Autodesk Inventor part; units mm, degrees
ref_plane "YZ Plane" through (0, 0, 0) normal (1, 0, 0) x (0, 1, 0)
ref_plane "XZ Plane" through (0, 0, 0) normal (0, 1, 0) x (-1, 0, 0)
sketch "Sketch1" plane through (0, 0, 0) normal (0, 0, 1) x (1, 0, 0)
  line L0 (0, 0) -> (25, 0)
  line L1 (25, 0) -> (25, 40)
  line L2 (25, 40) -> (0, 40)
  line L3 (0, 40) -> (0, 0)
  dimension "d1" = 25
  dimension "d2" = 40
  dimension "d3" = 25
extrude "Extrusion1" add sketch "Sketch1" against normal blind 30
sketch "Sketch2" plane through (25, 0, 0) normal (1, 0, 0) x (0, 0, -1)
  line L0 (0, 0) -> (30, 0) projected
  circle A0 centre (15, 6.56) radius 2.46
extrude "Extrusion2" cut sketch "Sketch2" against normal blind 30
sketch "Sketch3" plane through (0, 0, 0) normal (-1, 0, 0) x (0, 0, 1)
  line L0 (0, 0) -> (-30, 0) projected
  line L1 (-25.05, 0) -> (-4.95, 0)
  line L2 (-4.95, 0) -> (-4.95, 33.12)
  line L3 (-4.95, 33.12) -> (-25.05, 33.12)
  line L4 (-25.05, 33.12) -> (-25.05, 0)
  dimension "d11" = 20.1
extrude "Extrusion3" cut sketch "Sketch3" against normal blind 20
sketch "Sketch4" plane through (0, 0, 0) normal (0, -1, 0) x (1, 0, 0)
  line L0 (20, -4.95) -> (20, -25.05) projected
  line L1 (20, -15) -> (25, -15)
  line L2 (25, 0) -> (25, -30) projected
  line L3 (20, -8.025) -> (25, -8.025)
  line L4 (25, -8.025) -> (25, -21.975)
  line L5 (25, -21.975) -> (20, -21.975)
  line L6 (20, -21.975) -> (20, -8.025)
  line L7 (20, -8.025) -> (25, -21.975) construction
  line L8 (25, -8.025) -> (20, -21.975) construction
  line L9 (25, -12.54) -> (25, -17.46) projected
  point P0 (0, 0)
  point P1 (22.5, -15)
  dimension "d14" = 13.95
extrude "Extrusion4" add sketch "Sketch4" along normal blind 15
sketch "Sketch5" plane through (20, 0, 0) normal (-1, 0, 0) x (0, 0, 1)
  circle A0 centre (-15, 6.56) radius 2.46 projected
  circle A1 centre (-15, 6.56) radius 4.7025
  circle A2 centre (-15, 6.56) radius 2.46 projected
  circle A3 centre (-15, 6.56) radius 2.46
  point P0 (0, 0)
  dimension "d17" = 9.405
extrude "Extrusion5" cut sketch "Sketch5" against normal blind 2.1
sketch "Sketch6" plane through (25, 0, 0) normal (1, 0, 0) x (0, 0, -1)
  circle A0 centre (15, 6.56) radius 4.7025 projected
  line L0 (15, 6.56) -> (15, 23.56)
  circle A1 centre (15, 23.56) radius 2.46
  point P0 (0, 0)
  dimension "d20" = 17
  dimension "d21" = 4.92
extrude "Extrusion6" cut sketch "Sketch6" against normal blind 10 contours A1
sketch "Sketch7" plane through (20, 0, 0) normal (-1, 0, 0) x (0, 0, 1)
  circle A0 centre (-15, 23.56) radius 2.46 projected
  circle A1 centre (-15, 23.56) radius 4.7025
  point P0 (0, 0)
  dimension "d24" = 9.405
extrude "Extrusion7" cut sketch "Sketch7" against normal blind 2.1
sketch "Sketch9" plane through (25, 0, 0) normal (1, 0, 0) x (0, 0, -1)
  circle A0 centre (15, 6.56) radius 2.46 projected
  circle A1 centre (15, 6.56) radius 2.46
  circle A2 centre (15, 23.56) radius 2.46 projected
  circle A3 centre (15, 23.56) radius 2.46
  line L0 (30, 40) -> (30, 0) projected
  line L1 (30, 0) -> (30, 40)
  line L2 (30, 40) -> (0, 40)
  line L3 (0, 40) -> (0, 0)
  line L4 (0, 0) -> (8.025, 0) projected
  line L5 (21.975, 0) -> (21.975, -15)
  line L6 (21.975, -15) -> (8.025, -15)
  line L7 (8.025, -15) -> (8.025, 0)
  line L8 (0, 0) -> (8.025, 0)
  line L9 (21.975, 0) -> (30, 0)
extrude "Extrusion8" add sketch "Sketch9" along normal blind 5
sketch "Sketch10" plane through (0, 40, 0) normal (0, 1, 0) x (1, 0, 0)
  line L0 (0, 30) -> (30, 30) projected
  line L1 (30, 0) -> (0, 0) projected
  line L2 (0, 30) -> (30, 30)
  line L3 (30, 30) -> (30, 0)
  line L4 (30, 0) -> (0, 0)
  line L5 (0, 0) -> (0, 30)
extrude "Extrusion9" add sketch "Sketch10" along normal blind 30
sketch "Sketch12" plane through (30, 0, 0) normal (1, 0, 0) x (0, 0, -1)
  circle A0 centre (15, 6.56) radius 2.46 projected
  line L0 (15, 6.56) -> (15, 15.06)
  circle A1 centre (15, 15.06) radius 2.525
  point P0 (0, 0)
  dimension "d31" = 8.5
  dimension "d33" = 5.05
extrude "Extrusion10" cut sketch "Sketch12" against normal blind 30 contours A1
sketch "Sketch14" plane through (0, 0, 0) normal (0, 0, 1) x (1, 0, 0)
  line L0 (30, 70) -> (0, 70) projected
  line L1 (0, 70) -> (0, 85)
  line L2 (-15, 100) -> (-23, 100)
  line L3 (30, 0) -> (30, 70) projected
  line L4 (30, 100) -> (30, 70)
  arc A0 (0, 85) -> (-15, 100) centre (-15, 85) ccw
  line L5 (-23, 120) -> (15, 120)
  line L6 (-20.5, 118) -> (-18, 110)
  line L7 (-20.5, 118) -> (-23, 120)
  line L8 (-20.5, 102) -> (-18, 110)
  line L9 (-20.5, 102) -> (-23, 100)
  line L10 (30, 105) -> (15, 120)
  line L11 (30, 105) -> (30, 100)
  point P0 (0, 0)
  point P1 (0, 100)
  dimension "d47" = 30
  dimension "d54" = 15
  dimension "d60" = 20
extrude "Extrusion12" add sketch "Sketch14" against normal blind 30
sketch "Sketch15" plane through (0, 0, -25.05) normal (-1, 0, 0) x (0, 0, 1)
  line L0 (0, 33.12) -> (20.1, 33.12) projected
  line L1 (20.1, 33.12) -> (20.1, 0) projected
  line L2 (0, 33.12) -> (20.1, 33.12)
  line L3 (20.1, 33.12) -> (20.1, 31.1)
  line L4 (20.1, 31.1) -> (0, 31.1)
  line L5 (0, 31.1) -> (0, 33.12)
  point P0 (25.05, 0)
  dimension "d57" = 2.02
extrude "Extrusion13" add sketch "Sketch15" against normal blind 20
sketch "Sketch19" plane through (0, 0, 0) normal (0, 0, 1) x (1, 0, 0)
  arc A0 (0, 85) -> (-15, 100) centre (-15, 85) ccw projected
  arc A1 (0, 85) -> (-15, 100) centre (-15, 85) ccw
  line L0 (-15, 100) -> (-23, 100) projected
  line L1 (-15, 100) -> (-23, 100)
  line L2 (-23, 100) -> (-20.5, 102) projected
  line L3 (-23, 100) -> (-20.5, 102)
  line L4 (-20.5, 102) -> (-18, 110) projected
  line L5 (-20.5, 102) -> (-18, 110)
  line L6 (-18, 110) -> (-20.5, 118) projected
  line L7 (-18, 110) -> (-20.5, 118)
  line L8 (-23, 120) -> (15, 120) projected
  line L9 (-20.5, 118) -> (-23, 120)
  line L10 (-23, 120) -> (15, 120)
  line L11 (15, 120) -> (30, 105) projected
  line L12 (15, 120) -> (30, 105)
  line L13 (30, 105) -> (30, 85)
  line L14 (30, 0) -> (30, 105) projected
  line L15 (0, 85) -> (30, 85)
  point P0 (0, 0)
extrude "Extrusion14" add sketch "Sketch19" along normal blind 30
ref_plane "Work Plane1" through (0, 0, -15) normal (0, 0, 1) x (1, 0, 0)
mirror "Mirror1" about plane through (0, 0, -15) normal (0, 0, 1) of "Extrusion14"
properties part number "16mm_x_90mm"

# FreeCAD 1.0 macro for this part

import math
import FreeCAD as App
import Part
import Sketcher
from FreeCAD import Vector
Q = App.Units.Quantity

doc = App.newDocument("Part")
body = doc.addObject("PartDesign::Body", "Body")

# Sketch on XY plane
sketch1 = body.newObject("Sketcher::SketchObject", "Sketch")
sketch1.AttachmentSupport = (doc.getObject("XY_Plane"), [""])
sketch1.MapMode = "FlatFace"
sketch1.addGeometry(Part.LineSegment(Vector(0, 40, 0), Vector(0, 0, 0)), False)
sketch1.addGeometry(Part.LineSegment(Vector(0, 0, 0), Vector(25, 0, 0)), False)
sketch1.addGeometry(Part.LineSegment(Vector(25, 0, 0), Vector(25, 40, 0)), False)
sketch1.addGeometry(Part.LineSegment(Vector(25, 40, 0), Vector(0, 40, 0)), False)
sketch1.addConstraint(Sketcher.Constraint("Coincident", 0, 2, 1, 1))
sketch1.addConstraint(Sketcher.Constraint("Coincident", 1, 2, 2, 1))
sketch1.addConstraint(Sketcher.Constraint("Coincident", 2, 2, 3, 1))
sketch1.addConstraint(Sketcher.Constraint("Coincident", 3, 2, 0, 1))
sketch1.addConstraint(Sketcher.Constraint("Vertical", 0))
sketch1.addConstraint(Sketcher.Constraint("Horizontal", 1))
sketch1.addConstraint(Sketcher.Constraint("Vertical", 2))
sketch1.addConstraint(Sketcher.Constraint("Horizontal", 3))
sketch1.addConstraint(Sketcher.Constraint("Coincident", 0, 2, -1, 1))
sketch1.addConstraint(Sketcher.Constraint("DistanceX", 1, 1, 1, 2, Q("25 mm")))
sketch1.addConstraint(Sketcher.Constraint("DistanceY", 0, 2, 0, 1, Q("40 mm")))
pad1 = body.newObject("PartDesign::Pad", "Pad")
pad1.Profile = sketch1
pad1.Length = 30
pad1.Reversed = True

# Sketch on YZ plane
sketch2 = body.newObject("Sketcher::SketchObject", "Sketch001")
sketch2.AttachmentSupport = (doc.getObject("YZ_Plane"), [""])
sketch2.MapMode = "FlatFace"
sketch2.AttachmentOffset = App.Placement(Vector(0, 0, 25), App.Rotation())
sketch2.addGeometry(Part.Circle(Vector(6.6, -15, 0), Vector(0, 0, 1), 2.5), False)
sketch2.addConstraint(Sketcher.Constraint("Diameter", 0, Q("4.92 mm")))
sketch2.addConstraint(Sketcher.Constraint("DistanceY", 0, 3, -1, 1, Q("15 mm")))
sketch2.addConstraint(Sketcher.Constraint("DistanceX", -1, 1, 0, 3, Q("6.56 mm")))
pocket1 = body.newObject("PartDesign::Pocket", "Pocket")
pocket1.Profile = sketch2
pocket1.Length = 30

# Sketch on YZ plane
sketch3 = body.newObject("Sketcher::SketchObject", "Sketch002")
sketch3.AttachmentSupport = (doc.getObject("YZ_Plane"), [""])
sketch3.MapMode = "FlatFace"
sketch3.addGeometry(Part.LineSegment(Vector(0, -25, 0), Vector(0, -5, 0)), False)
sketch3.addGeometry(Part.LineSegment(Vector(0, -5, 0), Vector(33, -5, 0)), False)
sketch3.addGeometry(Part.LineSegment(Vector(33, -5, 0), Vector(33, -25, 0)), False)
sketch3.addGeometry(Part.LineSegment(Vector(33, -25, 0), Vector(0, -25, 0)), False)
sketch3.addConstraint(Sketcher.Constraint("Coincident", 0, 2, 1, 1))
sketch3.addConstraint(Sketcher.Constraint("Coincident", 1, 2, 2, 1))
sketch3.addConstraint(Sketcher.Constraint("Coincident", 2, 2, 3, 1))
sketch3.addConstraint(Sketcher.Constraint("Coincident", 3, 2, 0, 1))
sketch3.addConstraint(Sketcher.Constraint("Vertical", 0))
sketch3.addConstraint(Sketcher.Constraint("Horizontal", 1))
sketch3.addConstraint(Sketcher.Constraint("Vertical", 2))
sketch3.addConstraint(Sketcher.Constraint("Horizontal", 3))
sketch3.addConstraint(Sketcher.Constraint("PointOnObject", 0, 2, -2))
sketch3.addConstraint(Sketcher.Constraint("DistanceY", 0, 1, 0, 2, Q("20.1 mm")))
sketch3.addConstraint(Sketcher.Constraint("DistanceX", 1, 1, 1, 2, Q("33.12 mm")))
sketch3.addConstraint(Sketcher.Constraint("DistanceY", 0, 2, -1, 1, Q("4.95 mm")))
pocket2 = body.newObject("PartDesign::Pocket", "Pocket001")
pocket2.Profile = sketch3
pocket2.Length = 20
pocket2.Reversed = True

# Sketch on XZ plane
sketch4 = body.newObject("Sketcher::SketchObject", "Sketch003")
sketch4.AttachmentSupport = (doc.getObject("XZ_Plane"), [""])
sketch4.MapMode = "FlatFace"
sketch4.addGeometry(Part.LineSegment(Vector(25, -8, 0), Vector(20, -8, 0)), False)
sketch4.addGeometry(Part.LineSegment(Vector(20, -8, 0), Vector(20, -22, 0)), False)
sketch4.addGeometry(Part.LineSegment(Vector(20, -22, 0), Vector(25, -22, 0)), False)
sketch4.addGeometry(Part.LineSegment(Vector(25, -22, 0), Vector(25, -8, 0)), False)
sketch4.addConstraint(Sketcher.Constraint("Coincident", 0, 2, 1, 1))
sketch4.addConstraint(Sketcher.Constraint("Coincident", 1, 2, 2, 1))
sketch4.addConstraint(Sketcher.Constraint("Coincident", 2, 2, 3, 1))
sketch4.addConstraint(Sketcher.Constraint("Coincident", 3, 2, 0, 1))
sketch4.addConstraint(Sketcher.Constraint("Horizontal", 0))
sketch4.addConstraint(Sketcher.Constraint("Vertical", 1))
sketch4.addConstraint(Sketcher.Constraint("Horizontal", 2))
sketch4.addConstraint(Sketcher.Constraint("Vertical", 3))
sketch4.addConstraint(Sketcher.Constraint("DistanceY", 1, 2, 1, 1, Q("13.95 mm")))
sketch4.addConstraint(Sketcher.Constraint("DistanceX", 0, 2, 0, 1, Q("5 mm")))
sketch4.addConstraint(Sketcher.Constraint("DistanceX", -1, 1, 0, 2, Q("20 mm")))
sketch4.addConstraint(Sketcher.Constraint("DistanceY", 0, 2, -1, 1, Q("8.025 mm")))
pad2 = body.newObject("PartDesign::Pad", "Pad001")
pad2.Profile = sketch4
pad2.Length = 15

# Sketch on YZ plane
sketch5 = body.newObject("Sketcher::SketchObject", "Sketch004")
sketch5.AttachmentSupport = (doc.getObject("YZ_Plane"), [""])
sketch5.MapMode = "FlatFace"
sketch5.AttachmentOffset = App.Placement(Vector(0, 0, 20), App.Rotation())
sketch5.addGeometry(Part.Circle(Vector(6.6, -15, 0), Vector(0, 0, 1), 4.7), False)
sketch5.addGeometry(Part.Circle(Vector(6.6, -15, 0), Vector(0, 0, 1), 2.5), False)
sketch5.addConstraint(Sketcher.Constraint("Coincident", 1, 3, 0, 3))
sketch5.addConstraint(Sketcher.Constraint("Diameter", 0, Q("9.405 mm")))
sketch5.addConstraint(Sketcher.Constraint("Diameter", 1, Q("4.92 mm")))
sketch5.addConstraint(Sketcher.Constraint("DistanceY", 0, 3, -1, 1, Q("15 mm")))
sketch5.addConstraint(Sketcher.Constraint("DistanceX", -1, 1, 0, 3, Q("6.56 mm")))
pocket3 = body.newObject("PartDesign::Pocket", "Pocket002")
pocket3.Profile = sketch5
pocket3.Length = 2.1
pocket3.Reversed = True

# Sketch on YZ plane
sketch6 = body.newObject("Sketcher::SketchObject", "Sketch005")
sketch6.AttachmentSupport = (doc.getObject("YZ_Plane"), [""])
sketch6.MapMode = "FlatFace"
sketch6.AttachmentOffset = App.Placement(Vector(0, 0, 25), App.Rotation())
sketch6.addGeometry(Part.Circle(Vector(23.6, -15, 0), Vector(0, 0, 1), 2.5), False)
sketch6.addConstraint(Sketcher.Constraint("Diameter", 0, Q("4.92 mm")))
sketch6.addConstraint(Sketcher.Constraint("DistanceY", 0, 3, -1, 1, Q("15 mm")))
sketch6.addConstraint(Sketcher.Constraint("DistanceX", -1, 1, 0, 3, Q("23.56 mm")))
pocket4 = body.newObject("PartDesign::Pocket", "Pocket003")
pocket4.Profile = sketch6
pocket4.Length = 10

# Sketch on YZ plane
sketch7 = body.newObject("Sketcher::SketchObject", "Sketch006")
sketch7.AttachmentSupport = (doc.getObject("YZ_Plane"), [""])
sketch7.MapMode = "FlatFace"
sketch7.AttachmentOffset = App.Placement(Vector(0, 0, 20), App.Rotation())
sketch7.addGeometry(Part.Circle(Vector(23.6, -15, 0), Vector(0, 0, 1), 4.7), False)
sketch7.addGeometry(Part.Circle(Vector(23.6, -15, 0), Vector(0, 0, 1), 2.5), False)
sketch7.addConstraint(Sketcher.Constraint("Coincident", 1, 3, 0, 3))
sketch7.addConstraint(Sketcher.Constraint("Diameter", 0, Q("9.405 mm")))
sketch7.addConstraint(Sketcher.Constraint("Diameter", 1, Q("4.92 mm")))
sketch7.addConstraint(Sketcher.Constraint("DistanceY", 0, 3, -1, 1, Q("15 mm")))
sketch7.addConstraint(Sketcher.Constraint("DistanceX", -1, 1, 0, 3, Q("23.56 mm")))
pocket5 = body.newObject("PartDesign::Pocket", "Pocket004")
pocket5.Profile = sketch7
pocket5.Length = 2.1
pocket5.Reversed = True

# Sketch on YZ plane
sketch8 = body.newObject("Sketcher::SketchObject", "Sketch007")
sketch8.AttachmentSupport = (doc.getObject("YZ_Plane"), [""])
sketch8.MapMode = "FlatFace"
sketch8.AttachmentOffset = App.Placement(Vector(0, 0, 25), App.Rotation())
sketch8.addGeometry(Part.LineSegment(Vector(0, -30, 0), Vector(40, -30, 0)), False)
sketch8.addGeometry(Part.LineSegment(Vector(40, -30, 0), Vector(40, 0, 0)), False)
sketch8.addGeometry(Part.LineSegment(Vector(40, 0, 0), Vector(0, 0, 0)), False)
sketch8.addGeometry(Part.LineSegment(Vector(0, 0, 0), Vector(0, -8, 0)), False)
sketch8.addGeometry(Part.LineSegment(Vector(0, -8, 0), Vector(-15, -8, 0)), False)
sketch8.addGeometry(Part.LineSegment(Vector(-15, -8, 0), Vector(-15, -22, 0)), False)
sketch8.addGeometry(Part.LineSegment(Vector(-15, -22, 0), Vector(0, -22, 0)), False)
sketch8.addGeometry(Part.LineSegment(Vector(0, -22, 0), Vector(0, -30, 0)), False)
sketch8.addGeometry(Part.Circle(Vector(6.6, -15, 0), Vector(0, 0, 1), 2.5), False)
sketch8.addGeometry(Part.Circle(Vector(23.6, -15, 0), Vector(0, 0, 1), 2.5), False)
sketch8.addConstraint(Sketcher.Constraint("Coincident", 0, 2, 1, 1))
sketch8.addConstraint(Sketcher.Constraint("Coincident", 1, 2, 2, 1))
sketch8.addConstraint(Sketcher.Constraint("Coincident", 2, 2, 3, 1))
sketch8.addConstraint(Sketcher.Constraint("Coincident", 3, 2, 4, 1))
sketch8.addConstraint(Sketcher.Constraint("Coincident", 4, 2, 5, 1))
sketch8.addConstraint(Sketcher.Constraint("Coincident", 5, 2, 6, 1))
sketch8.addConstraint(Sketcher.Constraint("Coincident", 6, 2, 7, 1))
sketch8.addConstraint(Sketcher.Constraint("Coincident", 7, 2, 0, 1))
sketch8.addConstraint(Sketcher.Constraint("Horizontal", 0))
sketch8.addConstraint(Sketcher.Constraint("Vertical", 1))
sketch8.addConstraint(Sketcher.Constraint("Horizontal", 2))
sketch8.addConstraint(Sketcher.Constraint("Vertical", 3))
sketch8.addConstraint(Sketcher.Constraint("Horizontal", 4))
sketch8.addConstraint(Sketcher.Constraint("Vertical", 5))
sketch8.addConstraint(Sketcher.Constraint("Horizontal", 6))
sketch8.addConstraint(Sketcher.Constraint("Vertical", 7))
sketch8.addConstraint(Sketcher.Constraint("Coincident", 2, 2, -1, 1))
sketch8.addConstraint(Sketcher.Constraint("Equal", 8, 9))
sketch8.addConstraint(Sketcher.Constraint("PointOnObject", 6, 2, -2))
sketch8.addConstraint(Sketcher.Constraint("Horizontal", 8, 3, 9, 3))
sketch8.addConstraint(Sketcher.Constraint("Equal", 3, 7))
sketch8.addConstraint(Sketcher.Constraint("Diameter", 8, Q("4.92 mm")))
sketch8.addConstraint(Sketcher.Constraint("DistanceX", 0, 1, 0, 2, Q("40 mm")))
sketch8.addConstraint(Sketcher.Constraint("DistanceX", 4, 2, 4, 1, Q("15 mm")))
sketch8.addConstraint(Sketcher.Constraint("DistanceY", 1, 1, 1, 2, Q("30 mm")))
sketch8.addConstraint(Sketcher.Constraint("DistanceY", 8, 3, -1, 1, Q("15 mm")))
sketch8.addConstraint(Sketcher.Constraint("DistanceX", 8, 3, 9, 3, Q("17 mm")))
sketch8.addConstraint(Sketcher.Constraint("DistanceY", 5, 2, 5, 1, Q("13.95 mm")))
sketch8.addConstraint(Sketcher.Constraint("DistanceX", -1, 1, 8, 3, Q("6.56 mm")))
pad3 = body.newObject("PartDesign::Pad", "Pad002")
pad3.Profile = sketch8
pad3.Length = 5

# Sketch on XZ plane
sketch9 = body.newObject("Sketcher::SketchObject", "Sketch008")
sketch9.AttachmentSupport = (doc.getObject("XZ_Plane"), [""])
sketch9.MapMode = "FlatFace"
sketch9.AttachmentOffset = App.Placement(Vector(0, 0, -40), App.Rotation())
sketch9.addGeometry(Part.LineSegment(Vector(30, -30, 0), Vector(0, -30, 0)), False)
sketch9.addGeometry(Part.LineSegment(Vector(0, -30, 0), Vector(0, 0, 0)), False)
sketch9.addGeometry(Part.LineSegment(Vector(0, 0, 0), Vector(30, 0, 0)), False)
sketch9.addGeometry(Part.LineSegment(Vector(30, 0, 0), Vector(30, -30, 0)), False)
sketch9.addConstraint(Sketcher.Constraint("Coincident", 0, 2, 1, 1))
sketch9.addConstraint(Sketcher.Constraint("Coincident", 1, 2, 2, 1))
sketch9.addConstraint(Sketcher.Constraint("Coincident", 2, 2, 3, 1))
sketch9.addConstraint(Sketcher.Constraint("Coincident", 3, 2, 0, 1))
sketch9.addConstraint(Sketcher.Constraint("Horizontal", 0))
sketch9.addConstraint(Sketcher.Constraint("Vertical", 1))
sketch9.addConstraint(Sketcher.Constraint("Horizontal", 2))
sketch9.addConstraint(Sketcher.Constraint("Vertical", 3))
sketch9.addConstraint(Sketcher.Constraint("Coincident", 1, 2, -1, 1))
sketch9.addConstraint(Sketcher.Constraint("Equal", 2, 1))
sketch9.addConstraint(Sketcher.Constraint("DistanceX", 0, 2, 0, 1, Q("30 mm")))
pad4 = body.newObject("PartDesign::Pad", "Pad003")
pad4.Profile = sketch9
pad4.Length = 30
pad4.Reversed = True

# Sketch on YZ plane
sketch10 = body.newObject("Sketcher::SketchObject", "Sketch009")
sketch10.AttachmentSupport = (doc.getObject("YZ_Plane"), [""])
sketch10.MapMode = "FlatFace"
sketch10.AttachmentOffset = App.Placement(Vector(0, 0, 30), App.Rotation())
sketch10.addGeometry(Part.Circle(Vector(15.1, -15, 0), Vector(0, 0, 1), 2.5), False)
sketch10.addConstraint(Sketcher.Constraint("Diameter", 0, Q("5.05 mm")))
sketch10.addConstraint(Sketcher.Constraint("DistanceY", 0, 3, -1, 1, Q("15 mm")))
sketch10.addConstraint(Sketcher.Constraint("DistanceX", -1, 1, 0, 3, Q("15.06 mm")))
pocket6 = body.newObject("PartDesign::Pocket", "Pocket005")
pocket6.Profile = sketch10
pocket6.Length = 30

# Sketch on XY plane
sketch11 = body.newObject("Sketcher::SketchObject", "Sketch010")
sketch11.AttachmentSupport = (doc.getObject("XY_Plane"), [""])
sketch11.MapMode = "FlatFace"
sketch11.addGeometry(Part.LineSegment(Vector(0, 70, 0), Vector(30, 70, 0)), False)
sketch11.addGeometry(Part.LineSegment(Vector(30, 70, 0), Vector(30, 105, 0)), False)
sketch11.addGeometry(Part.LineSegment(Vector(30, 105, 0), Vector(15, 120, 0)), False)
sketch11.addGeometry(Part.LineSegment(Vector(15, 120, 0), Vector(-23, 120, 0)), False)
sketch11.addGeometry(Part.LineSegment(Vector(-23, 120, 0), Vector(-20.5, 118, 0)), False)
sketch11.addGeometry(Part.LineSegment(Vector(-20.5, 118, 0), Vector(-18, 110, 0)), False)
sketch11.addGeometry(Part.LineSegment(Vector(-18, 110, 0), Vector(-20.5, 102, 0)), False)
sketch11.addGeometry(Part.LineSegment(Vector(-20.5, 102, 0), Vector(-23, 100, 0)), False)
sketch11.addGeometry(Part.LineSegment(Vector(-23, 100, 0), Vector(-15, 100, 0)), False)
sketch11.addGeometry(Part.ArcOfCircle(Part.Circle(Vector(-15, 85, 0), Vector(0, 0, 1), 15), math.radians(0), math.radians(90)), False)
sketch11.addGeometry(Part.LineSegment(Vector(0, 85, 0), Vector(0, 70, 0)), False)
sketch11.addConstraint(Sketcher.Constraint("Coincident", 0, 2, 1, 1))
sketch11.addConstraint(Sketcher.Constraint("Coincident", 1, 2, 2, 1))
sketch11.addConstraint(Sketcher.Constraint("Coincident", 2, 2, 3, 1))
sketch11.addConstraint(Sketcher.Constraint("Coincident", 3, 2, 4, 1))
sketch11.addConstraint(Sketcher.Constraint("Coincident", 4, 2, 5, 1))
sketch11.addConstraint(Sketcher.Constraint("Coincident", 5, 2, 6, 1))
sketch11.addConstraint(Sketcher.Constraint("Coincident", 6, 2, 7, 1))
sketch11.addConstraint(Sketcher.Constraint("Coincident", 7, 2, 8, 1))
sketch11.addConstraint(Sketcher.Constraint("Tangent", 8, 2, 9, 2))
sketch11.addConstraint(Sketcher.Constraint("Tangent", 9, 1, 10, 1))
sketch11.addConstraint(Sketcher.Constraint("Coincident", 10, 2, 0, 1))
sketch11.addConstraint(Sketcher.Constraint("Horizontal", 0))
sketch11.addConstraint(Sketcher.Constraint("Vertical", 1))
sketch11.addConstraint(Sketcher.Constraint("Horizontal", 3))
sketch11.addConstraint(Sketcher.Constraint("Horizontal", 8))
sketch11.addConstraint(Sketcher.Constraint("Vertical", 10))
sketch11.addConstraint(Sketcher.Constraint("PointOnObject", 9, 1, -2))
sketch11.addConstraint(Sketcher.Constraint("Vertical", 4, 2, 6, 2))
sketch11.addConstraint(Sketcher.Constraint("Vertical", 3, 2, 7, 2))
sketch11.addConstraint(Sketcher.Constraint("Equal", 5, 6))
sketch11.addConstraint(Sketcher.Constraint("Equal", 4, 7))
sketch11.addConstraint(Sketcher.Constraint("Radius", 9, Q("15 mm")))
sketch11.addConstraint(Sketcher.Constraint("DistanceX", 0, 1, 0, 2, Q("30 mm")))
sketch11.addConstraint(Sketcher.Constraint("DistanceY", 10, 2, 10, 1, Q("15 mm")))
sketch11.addConstraint(Sketcher.Constraint("DistanceX", -1, 1, 2, 2, Q("15 mm")))
sketch11.addConstraint(Sketcher.Constraint("DistanceY", 9, 3, 1, 2, Q("20 mm")))
sketch11.addConstraint(Sketcher.Constraint("DistanceY", 1, 2, 2, 2, Q("15 mm")))
sketch11.addConstraint(Sketcher.Constraint("DistanceX", 3, 2, 3, 1, Q("38 mm")))
sketch11.addConstraint(Sketcher.Constraint("DistanceY", -1, 1, 9, 3, Q("85 mm")))
sketch11.addConstraint(Sketcher.Constraint("DistanceY", -1, 1, 4, 2, Q("118 mm")))
sketch11.addConstraint(Sketcher.Constraint("DistanceX", 5, 2, -1, 1, Q("18 mm")))
sketch11.addConstraint(Sketcher.Constraint("DistanceX", 4, 2, -1, 1, Q("20.5 mm")))
pad5 = body.newObject("PartDesign::Pad", "Pad004")
pad5.Profile = sketch11
pad5.Length = 30
pad5.Reversed = True

# Sketch on YZ plane
sketch12 = body.newObject("Sketcher::SketchObject", "Sketch011")
sketch12.AttachmentSupport = (doc.getObject("YZ_Plane"), [""])
sketch12.MapMode = "FlatFace"
sketch12.addGeometry(Part.LineSegment(Vector(33.1, -5, 0), Vector(33.1, -25.1, 0)), False)
sketch12.addGeometry(Part.LineSegment(Vector(33.1, -25.1, 0), Vector(31.1, -25.1, 0)), False)
sketch12.addGeometry(Part.LineSegment(Vector(31.1, -25.1, 0), Vector(31.1, -5, 0)), False)
sketch12.addGeometry(Part.LineSegment(Vector(31.1, -5, 0), Vector(33.1, -5, 0)), False)
sketch12.addConstraint(Sketcher.Constraint("Coincident", 0, 2, 1, 1))
sketch12.addConstraint(Sketcher.Constraint("Coincident", 1, 2, 2, 1))
sketch12.addConstraint(Sketcher.Constraint("Coincident", 2, 2, 3, 1))
sketch12.addConstraint(Sketcher.Constraint("Coincident", 3, 2, 0, 1))
sketch12.addConstraint(Sketcher.Constraint("Vertical", 0))
sketch12.addConstraint(Sketcher.Constraint("Horizontal", 1))
sketch12.addConstraint(Sketcher.Constraint("Vertical", 2))
sketch12.addConstraint(Sketcher.Constraint("Horizontal", 3))
sketch12.addConstraint(Sketcher.Constraint("DistanceX", 1, 2, 1, 1, Q("2.02 mm")))
sketch12.addConstraint(Sketcher.Constraint("DistanceY", 0, 2, 0, 1, Q("20.1 mm")))
sketch12.addConstraint(Sketcher.Constraint("DistanceX", -1, 1, 1, 2, Q("31.1 mm")))
sketch12.addConstraint(Sketcher.Constraint("DistanceY", 0, 2, -1, 1, Q("25.05 mm")))
pad6 = body.newObject("PartDesign::Pad", "Pad005")
pad6.Profile = sketch12
pad6.Length = 20

# Sketch on XY plane
sketch13 = body.newObject("Sketcher::SketchObject", "Sketch012")
sketch13.AttachmentSupport = (doc.getObject("XY_Plane"), [""])
sketch13.MapMode = "FlatFace"
sketch13.addGeometry(Part.ArcOfCircle(Part.Circle(Vector(-15, 85, 0), Vector(0, 0, 1), 15), math.radians(0), math.radians(90)), False)
sketch13.addGeometry(Part.LineSegment(Vector(0, 85, 0), Vector(30, 85, 0)), False)
sketch13.addGeometry(Part.LineSegment(Vector(30, 85, 0), Vector(30, 105, 0)), False)
sketch13.addGeometry(Part.LineSegment(Vector(30, 105, 0), Vector(15, 120, 0)), False)
sketch13.addGeometry(Part.LineSegment(Vector(15, 120, 0), Vector(-23, 120, 0)), False)
sketch13.addGeometry(Part.LineSegment(Vector(-23, 120, 0), Vector(-20.5, 118, 0)), False)
sketch13.addGeometry(Part.LineSegment(Vector(-20.5, 118, 0), Vector(-18, 110, 0)), False)
sketch13.addGeometry(Part.LineSegment(Vector(-18, 110, 0), Vector(-20.5, 102, 0)), False)
sketch13.addGeometry(Part.LineSegment(Vector(-20.5, 102, 0), Vector(-23, 100, 0)), False)
sketch13.addGeometry(Part.LineSegment(Vector(-23, 100, 0), Vector(-15, 100, 0)), False)
sketch13.addConstraint(Sketcher.Constraint("Coincident", 0, 1, 1, 1))
sketch13.addConstraint(Sketcher.Constraint("Coincident", 1, 2, 2, 1))
sketch13.addConstraint(Sketcher.Constraint("Coincident", 2, 2, 3, 1))
sketch13.addConstraint(Sketcher.Constraint("Coincident", 3, 2, 4, 1))
sketch13.addConstraint(Sketcher.Constraint("Coincident", 4, 2, 5, 1))
sketch13.addConstraint(Sketcher.Constraint("Coincident", 5, 2, 6, 1))
sketch13.addConstraint(Sketcher.Constraint("Coincident", 6, 2, 7, 1))
sketch13.addConstraint(Sketcher.Constraint("Coincident", 7, 2, 8, 1))
sketch13.addConstraint(Sketcher.Constraint("Coincident", 8, 2, 9, 1))
sketch13.addConstraint(Sketcher.Constraint("Tangent", 9, 2, 0, 2))
sketch13.addConstraint(Sketcher.Constraint("Horizontal", 1))
sketch13.addConstraint(Sketcher.Constraint("Vertical", 2))
sketch13.addConstraint(Sketcher.Constraint("Horizontal", 4))
sketch13.addConstraint(Sketcher.Constraint("Horizontal", 9))
sketch13.addConstraint(Sketcher.Constraint("PointOnObject", 0, 1, -2))
sketch13.addConstraint(Sketcher.Constraint("Vertical", 5, 2, 7, 2))
sketch13.addConstraint(Sketcher.Constraint("Vertical", 4, 2, 8, 2))
sketch13.addConstraint(Sketcher.Constraint("Equal", 6, 7))
sketch13.addConstraint(Sketcher.Constraint("Equal", 5, 8))
sketch13.addConstraint(Sketcher.Constraint("Radius", 0, Q("15 mm")))
sketch13.addConstraint(Sketcher.Constraint("DistanceX", 1, 1, 1, 2, Q("30 mm")))
sketch13.addConstraint(Sketcher.Constraint("DistanceX", 4, 2, 4, 1, Q("38 mm")))
sketch13.addConstraint(Sketcher.Constraint("DistanceX", 9, 1, 9, 2, Q("8 mm")))
sketch13.addConstraint(Sketcher.Constraint("DistanceY", 2, 1, 2, 2, Q("20 mm")))
sketch13.addConstraint(Sketcher.Constraint("Angle", 3, Q("135 deg")))
sketch13.addConstraint(Sketcher.Constraint("DistanceY", -1, 1, 0, 3, Q("85 mm")))
sketch13.addConstraint(Sketcher.Constraint("DistanceY", -1, 1, 0, 1, Q("85 mm")))
sketch13.addConstraint(Sketcher.Constraint("DistanceY", -1, 1, 5, 2, Q("118 mm")))
sketch13.addConstraint(Sketcher.Constraint("DistanceX", 6, 2, -1, 1, Q("18 mm")))
sketch13.addConstraint(Sketcher.Constraint("DistanceX", 5, 2, -1, 1, Q("20.5 mm")))
pad7 = body.newObject("PartDesign::Pad", "Pad006")
pad7.Profile = sketch13
pad7.Length = 30
doc.recompute()

datumplane = body.newObject("PartDesign::Plane", "DatumPlane")
datumplane.AttachmentSupport = (doc.getObject("XY_Plane"), [""])
datumplane.MapMode = "FlatFace"
datumplane.AttachmentOffset = App.Placement(Vector(0, 0, -15), App.Rotation())
mirrored = body.newObject("PartDesign::Mirrored", "Mirrored")
mirrored.Originals = [pad7]
mirrored.MirrorPlane = (datumplane, [""])
body.Tip = mirrored

doc.recompute()
